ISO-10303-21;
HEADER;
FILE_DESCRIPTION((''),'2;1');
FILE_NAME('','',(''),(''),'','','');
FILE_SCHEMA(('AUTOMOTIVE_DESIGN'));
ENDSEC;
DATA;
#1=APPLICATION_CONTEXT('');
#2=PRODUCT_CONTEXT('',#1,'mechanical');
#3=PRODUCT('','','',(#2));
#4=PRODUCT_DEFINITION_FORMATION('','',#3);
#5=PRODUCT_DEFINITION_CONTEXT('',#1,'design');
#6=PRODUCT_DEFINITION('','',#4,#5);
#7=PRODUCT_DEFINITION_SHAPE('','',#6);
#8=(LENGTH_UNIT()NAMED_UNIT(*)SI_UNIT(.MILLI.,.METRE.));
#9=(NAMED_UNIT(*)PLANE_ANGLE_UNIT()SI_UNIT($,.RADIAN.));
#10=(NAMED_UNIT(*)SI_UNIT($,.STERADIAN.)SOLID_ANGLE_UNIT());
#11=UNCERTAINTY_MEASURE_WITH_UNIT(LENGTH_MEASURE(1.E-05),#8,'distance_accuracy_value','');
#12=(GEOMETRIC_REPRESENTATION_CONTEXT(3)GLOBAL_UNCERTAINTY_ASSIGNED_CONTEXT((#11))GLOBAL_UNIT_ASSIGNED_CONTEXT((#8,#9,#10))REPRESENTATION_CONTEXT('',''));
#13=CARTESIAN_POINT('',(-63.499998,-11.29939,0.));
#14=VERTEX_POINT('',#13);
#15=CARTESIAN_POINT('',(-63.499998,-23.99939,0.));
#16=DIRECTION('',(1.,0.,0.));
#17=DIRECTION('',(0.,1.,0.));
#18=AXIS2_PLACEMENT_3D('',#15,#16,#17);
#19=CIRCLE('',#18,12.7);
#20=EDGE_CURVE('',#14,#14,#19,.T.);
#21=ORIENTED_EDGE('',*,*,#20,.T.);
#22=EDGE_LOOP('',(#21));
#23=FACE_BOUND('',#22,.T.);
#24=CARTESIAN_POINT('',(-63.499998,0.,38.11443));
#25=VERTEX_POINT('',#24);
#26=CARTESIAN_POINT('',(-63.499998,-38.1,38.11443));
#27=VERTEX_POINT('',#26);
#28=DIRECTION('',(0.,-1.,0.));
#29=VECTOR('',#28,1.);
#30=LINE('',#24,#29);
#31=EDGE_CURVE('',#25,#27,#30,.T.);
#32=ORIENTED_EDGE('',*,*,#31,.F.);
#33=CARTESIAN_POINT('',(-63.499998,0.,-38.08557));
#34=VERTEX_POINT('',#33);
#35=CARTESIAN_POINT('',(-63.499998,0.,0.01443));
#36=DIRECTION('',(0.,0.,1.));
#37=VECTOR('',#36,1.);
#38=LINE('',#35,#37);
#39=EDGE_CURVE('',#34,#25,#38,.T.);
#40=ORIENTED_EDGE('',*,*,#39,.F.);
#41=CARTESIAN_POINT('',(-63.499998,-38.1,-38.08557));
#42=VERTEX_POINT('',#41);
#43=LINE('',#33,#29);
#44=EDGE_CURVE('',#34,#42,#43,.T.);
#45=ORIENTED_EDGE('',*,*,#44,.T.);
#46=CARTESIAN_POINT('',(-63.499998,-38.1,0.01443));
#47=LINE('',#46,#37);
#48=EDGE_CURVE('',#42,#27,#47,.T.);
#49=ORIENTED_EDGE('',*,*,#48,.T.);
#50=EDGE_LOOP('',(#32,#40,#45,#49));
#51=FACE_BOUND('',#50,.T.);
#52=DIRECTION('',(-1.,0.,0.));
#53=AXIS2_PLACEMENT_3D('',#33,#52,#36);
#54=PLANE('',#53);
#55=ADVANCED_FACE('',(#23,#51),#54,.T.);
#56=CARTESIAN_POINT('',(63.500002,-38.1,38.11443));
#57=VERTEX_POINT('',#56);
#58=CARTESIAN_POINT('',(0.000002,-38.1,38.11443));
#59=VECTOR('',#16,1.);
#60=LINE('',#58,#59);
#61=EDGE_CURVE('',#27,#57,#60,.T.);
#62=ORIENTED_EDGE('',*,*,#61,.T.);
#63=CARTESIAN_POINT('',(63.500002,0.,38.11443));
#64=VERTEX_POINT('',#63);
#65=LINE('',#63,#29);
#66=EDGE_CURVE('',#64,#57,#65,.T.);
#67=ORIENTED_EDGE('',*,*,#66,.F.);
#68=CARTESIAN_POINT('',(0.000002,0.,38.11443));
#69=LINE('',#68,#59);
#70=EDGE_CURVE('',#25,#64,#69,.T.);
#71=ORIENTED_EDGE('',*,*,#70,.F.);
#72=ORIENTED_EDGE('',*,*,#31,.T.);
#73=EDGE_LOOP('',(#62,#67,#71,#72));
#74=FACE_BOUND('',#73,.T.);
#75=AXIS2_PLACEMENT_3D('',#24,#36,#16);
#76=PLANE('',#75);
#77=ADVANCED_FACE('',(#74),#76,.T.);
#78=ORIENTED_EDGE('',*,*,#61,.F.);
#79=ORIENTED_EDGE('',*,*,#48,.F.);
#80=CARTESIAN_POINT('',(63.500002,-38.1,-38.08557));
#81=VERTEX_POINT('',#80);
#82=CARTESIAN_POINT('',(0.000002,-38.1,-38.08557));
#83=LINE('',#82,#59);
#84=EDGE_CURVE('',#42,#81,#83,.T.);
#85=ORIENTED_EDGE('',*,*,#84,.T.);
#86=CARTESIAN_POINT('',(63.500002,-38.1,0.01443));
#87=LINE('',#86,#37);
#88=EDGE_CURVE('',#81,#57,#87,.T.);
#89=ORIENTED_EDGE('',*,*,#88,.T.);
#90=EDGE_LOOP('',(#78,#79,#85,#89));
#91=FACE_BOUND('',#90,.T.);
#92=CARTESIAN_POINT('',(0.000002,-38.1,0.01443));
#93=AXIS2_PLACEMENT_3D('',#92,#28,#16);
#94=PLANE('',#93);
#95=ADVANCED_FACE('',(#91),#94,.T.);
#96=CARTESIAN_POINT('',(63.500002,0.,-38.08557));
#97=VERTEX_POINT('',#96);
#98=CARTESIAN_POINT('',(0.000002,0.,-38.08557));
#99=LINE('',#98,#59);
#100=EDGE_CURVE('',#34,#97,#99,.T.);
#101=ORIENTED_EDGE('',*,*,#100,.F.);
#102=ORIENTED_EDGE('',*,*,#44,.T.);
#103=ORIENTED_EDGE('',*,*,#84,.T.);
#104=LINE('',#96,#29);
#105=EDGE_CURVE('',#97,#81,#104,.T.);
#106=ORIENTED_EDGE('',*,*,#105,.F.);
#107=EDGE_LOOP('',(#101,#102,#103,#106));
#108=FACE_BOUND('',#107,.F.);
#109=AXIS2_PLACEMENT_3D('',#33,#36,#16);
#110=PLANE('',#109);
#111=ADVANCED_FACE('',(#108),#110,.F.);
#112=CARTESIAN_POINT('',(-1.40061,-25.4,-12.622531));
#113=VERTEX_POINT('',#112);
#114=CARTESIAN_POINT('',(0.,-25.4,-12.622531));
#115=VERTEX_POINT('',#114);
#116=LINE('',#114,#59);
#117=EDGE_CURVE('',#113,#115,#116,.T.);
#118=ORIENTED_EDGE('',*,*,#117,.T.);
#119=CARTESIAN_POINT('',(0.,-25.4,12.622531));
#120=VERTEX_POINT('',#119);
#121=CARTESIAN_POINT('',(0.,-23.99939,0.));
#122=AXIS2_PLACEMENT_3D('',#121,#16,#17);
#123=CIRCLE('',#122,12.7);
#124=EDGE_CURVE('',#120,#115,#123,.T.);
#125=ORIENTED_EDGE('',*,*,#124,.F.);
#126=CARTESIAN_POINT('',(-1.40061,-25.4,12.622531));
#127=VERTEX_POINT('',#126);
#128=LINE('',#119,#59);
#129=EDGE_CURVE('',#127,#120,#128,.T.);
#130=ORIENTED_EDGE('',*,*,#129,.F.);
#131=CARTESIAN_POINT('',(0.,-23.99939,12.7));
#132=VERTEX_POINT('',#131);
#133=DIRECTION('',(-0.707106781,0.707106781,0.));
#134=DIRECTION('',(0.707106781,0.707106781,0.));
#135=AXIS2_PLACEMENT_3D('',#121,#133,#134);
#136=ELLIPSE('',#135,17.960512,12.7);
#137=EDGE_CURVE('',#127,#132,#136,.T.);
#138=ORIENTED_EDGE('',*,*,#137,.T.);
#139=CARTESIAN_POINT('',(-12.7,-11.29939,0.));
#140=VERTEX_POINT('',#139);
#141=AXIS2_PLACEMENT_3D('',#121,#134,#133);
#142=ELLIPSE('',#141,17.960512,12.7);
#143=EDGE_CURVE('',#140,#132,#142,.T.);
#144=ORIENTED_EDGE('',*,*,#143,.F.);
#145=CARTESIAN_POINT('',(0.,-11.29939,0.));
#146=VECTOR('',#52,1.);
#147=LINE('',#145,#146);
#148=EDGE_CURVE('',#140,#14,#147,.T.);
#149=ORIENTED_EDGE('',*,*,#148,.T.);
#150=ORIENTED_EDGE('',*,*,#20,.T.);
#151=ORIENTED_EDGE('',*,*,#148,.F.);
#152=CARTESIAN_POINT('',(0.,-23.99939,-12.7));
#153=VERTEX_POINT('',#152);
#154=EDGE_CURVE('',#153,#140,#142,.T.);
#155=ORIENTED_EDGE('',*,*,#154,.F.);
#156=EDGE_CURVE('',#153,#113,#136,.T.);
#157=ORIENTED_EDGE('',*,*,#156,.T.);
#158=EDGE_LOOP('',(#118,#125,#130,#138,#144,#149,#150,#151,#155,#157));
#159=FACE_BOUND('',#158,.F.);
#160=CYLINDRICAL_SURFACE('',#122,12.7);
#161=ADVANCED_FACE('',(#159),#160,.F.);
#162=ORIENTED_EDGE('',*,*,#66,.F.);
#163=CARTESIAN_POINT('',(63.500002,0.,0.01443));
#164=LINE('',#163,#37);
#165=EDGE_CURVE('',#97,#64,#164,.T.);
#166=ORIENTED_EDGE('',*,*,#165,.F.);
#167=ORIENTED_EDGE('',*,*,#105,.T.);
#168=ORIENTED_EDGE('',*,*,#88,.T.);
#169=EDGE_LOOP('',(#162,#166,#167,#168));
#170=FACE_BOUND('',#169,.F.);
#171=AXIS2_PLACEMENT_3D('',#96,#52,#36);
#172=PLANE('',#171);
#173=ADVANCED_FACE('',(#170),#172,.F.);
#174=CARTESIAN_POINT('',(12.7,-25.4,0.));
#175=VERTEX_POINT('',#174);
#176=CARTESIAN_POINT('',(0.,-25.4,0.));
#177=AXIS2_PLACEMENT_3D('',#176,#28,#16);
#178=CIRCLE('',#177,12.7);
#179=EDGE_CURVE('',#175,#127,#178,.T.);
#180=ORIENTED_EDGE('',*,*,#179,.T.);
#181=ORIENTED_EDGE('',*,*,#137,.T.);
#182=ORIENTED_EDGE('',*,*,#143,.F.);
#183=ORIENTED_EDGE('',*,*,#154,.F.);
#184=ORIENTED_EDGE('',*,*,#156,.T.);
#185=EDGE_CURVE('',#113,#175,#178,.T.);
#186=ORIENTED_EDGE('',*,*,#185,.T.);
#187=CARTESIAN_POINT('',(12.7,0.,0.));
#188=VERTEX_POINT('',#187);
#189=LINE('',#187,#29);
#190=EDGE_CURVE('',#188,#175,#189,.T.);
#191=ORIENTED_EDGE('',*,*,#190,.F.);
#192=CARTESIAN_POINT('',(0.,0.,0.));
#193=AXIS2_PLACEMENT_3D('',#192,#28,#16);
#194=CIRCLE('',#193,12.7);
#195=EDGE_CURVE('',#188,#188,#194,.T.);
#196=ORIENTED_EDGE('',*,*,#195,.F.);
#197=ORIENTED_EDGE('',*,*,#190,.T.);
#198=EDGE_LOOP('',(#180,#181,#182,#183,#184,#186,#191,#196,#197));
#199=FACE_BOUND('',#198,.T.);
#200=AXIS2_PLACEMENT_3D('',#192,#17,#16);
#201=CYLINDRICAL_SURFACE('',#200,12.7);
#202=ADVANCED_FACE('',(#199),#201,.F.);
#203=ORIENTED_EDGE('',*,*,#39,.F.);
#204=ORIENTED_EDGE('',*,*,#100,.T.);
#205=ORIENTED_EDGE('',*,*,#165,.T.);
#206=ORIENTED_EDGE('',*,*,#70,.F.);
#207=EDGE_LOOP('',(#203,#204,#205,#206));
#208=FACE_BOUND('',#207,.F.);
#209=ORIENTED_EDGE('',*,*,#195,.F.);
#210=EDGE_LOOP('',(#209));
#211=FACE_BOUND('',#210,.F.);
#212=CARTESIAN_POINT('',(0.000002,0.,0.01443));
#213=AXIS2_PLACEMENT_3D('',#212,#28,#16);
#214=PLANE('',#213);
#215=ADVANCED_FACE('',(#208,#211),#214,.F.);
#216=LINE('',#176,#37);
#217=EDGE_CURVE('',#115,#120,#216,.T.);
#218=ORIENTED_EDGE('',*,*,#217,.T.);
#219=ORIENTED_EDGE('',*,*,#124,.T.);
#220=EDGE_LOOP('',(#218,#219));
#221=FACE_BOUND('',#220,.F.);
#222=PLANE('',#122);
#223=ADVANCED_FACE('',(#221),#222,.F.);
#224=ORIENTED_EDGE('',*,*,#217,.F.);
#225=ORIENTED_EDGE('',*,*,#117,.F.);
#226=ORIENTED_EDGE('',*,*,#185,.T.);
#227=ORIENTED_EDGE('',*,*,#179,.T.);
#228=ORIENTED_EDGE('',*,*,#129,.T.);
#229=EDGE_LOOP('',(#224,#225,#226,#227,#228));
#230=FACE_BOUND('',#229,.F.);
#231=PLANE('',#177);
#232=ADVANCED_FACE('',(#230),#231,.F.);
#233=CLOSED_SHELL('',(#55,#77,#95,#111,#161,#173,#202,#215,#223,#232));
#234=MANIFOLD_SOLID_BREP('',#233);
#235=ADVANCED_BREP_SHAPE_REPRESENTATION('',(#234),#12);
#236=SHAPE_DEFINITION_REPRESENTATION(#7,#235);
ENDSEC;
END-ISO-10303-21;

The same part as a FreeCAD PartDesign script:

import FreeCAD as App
import Part
import Sketcher
from FreeCAD import Vector
Q = App.Units.Quantity

doc = App.newDocument("Part")
body = doc.addObject("PartDesign::Body", "Body")

# Sketch on XZ plane
sketch1 = body.newObject("Sketcher::SketchObject", "Sketch")
sketch1.AttachmentSupport = (doc.getObject("XZ_Plane"), [""])
sketch1.MapMode = "FlatFace"
sketch1.addGeometry([
    Part.LineSegment(Vector(-63.499998, 38.11443, 0), Vector(-63.499998, -38.08557, 0)),
    Part.LineSegment(Vector(-63.499998, -38.08557, 0), Vector(63.500002, -38.08557, 0)),
    Part.LineSegment(Vector(63.500002, -38.08557, 0), Vector(63.500002, 38.11443, 0)),
    Part.LineSegment(Vector(63.500002, 38.11443, 0), Vector(-63.499998, 38.11443, 0)),
], False)
sketch1.addConstraint([
    Sketcher.Constraint("Coincident", 0, 2, 1, 1),
    Sketcher.Constraint("Coincident", 1, 2, 2, 1),
    Sketcher.Constraint("Coincident", 2, 2, 3, 1),
    Sketcher.Constraint("Coincident", 3, 2, 0, 1),
    Sketcher.Constraint("Vertical", 0),
    Sketcher.Constraint("Horizontal", 1),
    Sketcher.Constraint("Vertical", 2),
    Sketcher.Constraint("Horizontal", 3),
    Sketcher.Constraint("DistanceX", 1, 1, 1, 2, Q("5 in")),
    Sketcher.Constraint("DistanceY", 0, 2, 0, 1, Q("3 in")),
    Sketcher.Constraint("DistanceX", 0, 2, -1, 1, Q("2.4999999 in")),
    Sketcher.Constraint("DistanceY", 0, 2, -1, 1, Q("38.08557 mm")),
])
pad1 = body.newObject("PartDesign::Pad", "Pad")
pad1.Profile = sketch1
pad1.Length = Q("1.5 in")

# Sketch on XZ plane
sketch2 = body.newObject("Sketcher::SketchObject", "Sketch001")
sketch2.AttachmentSupport = (doc.getObject("XZ_Plane"), [""])
sketch2.MapMode = "FlatFace"
sketch2.addGeometry(Part.Circle(Vector(0, 0, 0), Vector(0, 0, 1), 12.7), False)
sketch2.addConstraint([
    Sketcher.Constraint("Coincident", 0, 3, -1, 1),
    Sketcher.Constraint("Diameter", 0, Q("1 in")),
])
pocket1 = body.newObject("PartDesign::Pocket", "Pocket")
pocket1.Profile = sketch2
pocket1.Length = Q("1 in")
pocket1.Reversed = True

# Sketch on YZ plane
sketch3 = body.newObject("Sketcher::SketchObject", "Sketch002")
sketch3.AttachmentSupport = (doc.getObject("YZ_Plane"), [""])
sketch3.MapMode = "FlatFace"
sketch3.addGeometry(Part.Circle(Vector(-23.99939, 0, 0), Vector(0, 0, 1), 12.7), False)
sketch3.addConstraint([
    Sketcher.Constraint("PointOnObject", 0, 3, -1),
    Sketcher.Constraint("Diameter", 0, Q("1 in")),
    Sketcher.Constraint("DistanceX", 0, 3, -1, 1, Q("23.99939 mm")),
])
pocket2 = body.newObject("PartDesign::Pocket", "Pocket001")
pocket2.Profile = sketch3
pocket2.Length = Q("3 in")

doc.recompute()
